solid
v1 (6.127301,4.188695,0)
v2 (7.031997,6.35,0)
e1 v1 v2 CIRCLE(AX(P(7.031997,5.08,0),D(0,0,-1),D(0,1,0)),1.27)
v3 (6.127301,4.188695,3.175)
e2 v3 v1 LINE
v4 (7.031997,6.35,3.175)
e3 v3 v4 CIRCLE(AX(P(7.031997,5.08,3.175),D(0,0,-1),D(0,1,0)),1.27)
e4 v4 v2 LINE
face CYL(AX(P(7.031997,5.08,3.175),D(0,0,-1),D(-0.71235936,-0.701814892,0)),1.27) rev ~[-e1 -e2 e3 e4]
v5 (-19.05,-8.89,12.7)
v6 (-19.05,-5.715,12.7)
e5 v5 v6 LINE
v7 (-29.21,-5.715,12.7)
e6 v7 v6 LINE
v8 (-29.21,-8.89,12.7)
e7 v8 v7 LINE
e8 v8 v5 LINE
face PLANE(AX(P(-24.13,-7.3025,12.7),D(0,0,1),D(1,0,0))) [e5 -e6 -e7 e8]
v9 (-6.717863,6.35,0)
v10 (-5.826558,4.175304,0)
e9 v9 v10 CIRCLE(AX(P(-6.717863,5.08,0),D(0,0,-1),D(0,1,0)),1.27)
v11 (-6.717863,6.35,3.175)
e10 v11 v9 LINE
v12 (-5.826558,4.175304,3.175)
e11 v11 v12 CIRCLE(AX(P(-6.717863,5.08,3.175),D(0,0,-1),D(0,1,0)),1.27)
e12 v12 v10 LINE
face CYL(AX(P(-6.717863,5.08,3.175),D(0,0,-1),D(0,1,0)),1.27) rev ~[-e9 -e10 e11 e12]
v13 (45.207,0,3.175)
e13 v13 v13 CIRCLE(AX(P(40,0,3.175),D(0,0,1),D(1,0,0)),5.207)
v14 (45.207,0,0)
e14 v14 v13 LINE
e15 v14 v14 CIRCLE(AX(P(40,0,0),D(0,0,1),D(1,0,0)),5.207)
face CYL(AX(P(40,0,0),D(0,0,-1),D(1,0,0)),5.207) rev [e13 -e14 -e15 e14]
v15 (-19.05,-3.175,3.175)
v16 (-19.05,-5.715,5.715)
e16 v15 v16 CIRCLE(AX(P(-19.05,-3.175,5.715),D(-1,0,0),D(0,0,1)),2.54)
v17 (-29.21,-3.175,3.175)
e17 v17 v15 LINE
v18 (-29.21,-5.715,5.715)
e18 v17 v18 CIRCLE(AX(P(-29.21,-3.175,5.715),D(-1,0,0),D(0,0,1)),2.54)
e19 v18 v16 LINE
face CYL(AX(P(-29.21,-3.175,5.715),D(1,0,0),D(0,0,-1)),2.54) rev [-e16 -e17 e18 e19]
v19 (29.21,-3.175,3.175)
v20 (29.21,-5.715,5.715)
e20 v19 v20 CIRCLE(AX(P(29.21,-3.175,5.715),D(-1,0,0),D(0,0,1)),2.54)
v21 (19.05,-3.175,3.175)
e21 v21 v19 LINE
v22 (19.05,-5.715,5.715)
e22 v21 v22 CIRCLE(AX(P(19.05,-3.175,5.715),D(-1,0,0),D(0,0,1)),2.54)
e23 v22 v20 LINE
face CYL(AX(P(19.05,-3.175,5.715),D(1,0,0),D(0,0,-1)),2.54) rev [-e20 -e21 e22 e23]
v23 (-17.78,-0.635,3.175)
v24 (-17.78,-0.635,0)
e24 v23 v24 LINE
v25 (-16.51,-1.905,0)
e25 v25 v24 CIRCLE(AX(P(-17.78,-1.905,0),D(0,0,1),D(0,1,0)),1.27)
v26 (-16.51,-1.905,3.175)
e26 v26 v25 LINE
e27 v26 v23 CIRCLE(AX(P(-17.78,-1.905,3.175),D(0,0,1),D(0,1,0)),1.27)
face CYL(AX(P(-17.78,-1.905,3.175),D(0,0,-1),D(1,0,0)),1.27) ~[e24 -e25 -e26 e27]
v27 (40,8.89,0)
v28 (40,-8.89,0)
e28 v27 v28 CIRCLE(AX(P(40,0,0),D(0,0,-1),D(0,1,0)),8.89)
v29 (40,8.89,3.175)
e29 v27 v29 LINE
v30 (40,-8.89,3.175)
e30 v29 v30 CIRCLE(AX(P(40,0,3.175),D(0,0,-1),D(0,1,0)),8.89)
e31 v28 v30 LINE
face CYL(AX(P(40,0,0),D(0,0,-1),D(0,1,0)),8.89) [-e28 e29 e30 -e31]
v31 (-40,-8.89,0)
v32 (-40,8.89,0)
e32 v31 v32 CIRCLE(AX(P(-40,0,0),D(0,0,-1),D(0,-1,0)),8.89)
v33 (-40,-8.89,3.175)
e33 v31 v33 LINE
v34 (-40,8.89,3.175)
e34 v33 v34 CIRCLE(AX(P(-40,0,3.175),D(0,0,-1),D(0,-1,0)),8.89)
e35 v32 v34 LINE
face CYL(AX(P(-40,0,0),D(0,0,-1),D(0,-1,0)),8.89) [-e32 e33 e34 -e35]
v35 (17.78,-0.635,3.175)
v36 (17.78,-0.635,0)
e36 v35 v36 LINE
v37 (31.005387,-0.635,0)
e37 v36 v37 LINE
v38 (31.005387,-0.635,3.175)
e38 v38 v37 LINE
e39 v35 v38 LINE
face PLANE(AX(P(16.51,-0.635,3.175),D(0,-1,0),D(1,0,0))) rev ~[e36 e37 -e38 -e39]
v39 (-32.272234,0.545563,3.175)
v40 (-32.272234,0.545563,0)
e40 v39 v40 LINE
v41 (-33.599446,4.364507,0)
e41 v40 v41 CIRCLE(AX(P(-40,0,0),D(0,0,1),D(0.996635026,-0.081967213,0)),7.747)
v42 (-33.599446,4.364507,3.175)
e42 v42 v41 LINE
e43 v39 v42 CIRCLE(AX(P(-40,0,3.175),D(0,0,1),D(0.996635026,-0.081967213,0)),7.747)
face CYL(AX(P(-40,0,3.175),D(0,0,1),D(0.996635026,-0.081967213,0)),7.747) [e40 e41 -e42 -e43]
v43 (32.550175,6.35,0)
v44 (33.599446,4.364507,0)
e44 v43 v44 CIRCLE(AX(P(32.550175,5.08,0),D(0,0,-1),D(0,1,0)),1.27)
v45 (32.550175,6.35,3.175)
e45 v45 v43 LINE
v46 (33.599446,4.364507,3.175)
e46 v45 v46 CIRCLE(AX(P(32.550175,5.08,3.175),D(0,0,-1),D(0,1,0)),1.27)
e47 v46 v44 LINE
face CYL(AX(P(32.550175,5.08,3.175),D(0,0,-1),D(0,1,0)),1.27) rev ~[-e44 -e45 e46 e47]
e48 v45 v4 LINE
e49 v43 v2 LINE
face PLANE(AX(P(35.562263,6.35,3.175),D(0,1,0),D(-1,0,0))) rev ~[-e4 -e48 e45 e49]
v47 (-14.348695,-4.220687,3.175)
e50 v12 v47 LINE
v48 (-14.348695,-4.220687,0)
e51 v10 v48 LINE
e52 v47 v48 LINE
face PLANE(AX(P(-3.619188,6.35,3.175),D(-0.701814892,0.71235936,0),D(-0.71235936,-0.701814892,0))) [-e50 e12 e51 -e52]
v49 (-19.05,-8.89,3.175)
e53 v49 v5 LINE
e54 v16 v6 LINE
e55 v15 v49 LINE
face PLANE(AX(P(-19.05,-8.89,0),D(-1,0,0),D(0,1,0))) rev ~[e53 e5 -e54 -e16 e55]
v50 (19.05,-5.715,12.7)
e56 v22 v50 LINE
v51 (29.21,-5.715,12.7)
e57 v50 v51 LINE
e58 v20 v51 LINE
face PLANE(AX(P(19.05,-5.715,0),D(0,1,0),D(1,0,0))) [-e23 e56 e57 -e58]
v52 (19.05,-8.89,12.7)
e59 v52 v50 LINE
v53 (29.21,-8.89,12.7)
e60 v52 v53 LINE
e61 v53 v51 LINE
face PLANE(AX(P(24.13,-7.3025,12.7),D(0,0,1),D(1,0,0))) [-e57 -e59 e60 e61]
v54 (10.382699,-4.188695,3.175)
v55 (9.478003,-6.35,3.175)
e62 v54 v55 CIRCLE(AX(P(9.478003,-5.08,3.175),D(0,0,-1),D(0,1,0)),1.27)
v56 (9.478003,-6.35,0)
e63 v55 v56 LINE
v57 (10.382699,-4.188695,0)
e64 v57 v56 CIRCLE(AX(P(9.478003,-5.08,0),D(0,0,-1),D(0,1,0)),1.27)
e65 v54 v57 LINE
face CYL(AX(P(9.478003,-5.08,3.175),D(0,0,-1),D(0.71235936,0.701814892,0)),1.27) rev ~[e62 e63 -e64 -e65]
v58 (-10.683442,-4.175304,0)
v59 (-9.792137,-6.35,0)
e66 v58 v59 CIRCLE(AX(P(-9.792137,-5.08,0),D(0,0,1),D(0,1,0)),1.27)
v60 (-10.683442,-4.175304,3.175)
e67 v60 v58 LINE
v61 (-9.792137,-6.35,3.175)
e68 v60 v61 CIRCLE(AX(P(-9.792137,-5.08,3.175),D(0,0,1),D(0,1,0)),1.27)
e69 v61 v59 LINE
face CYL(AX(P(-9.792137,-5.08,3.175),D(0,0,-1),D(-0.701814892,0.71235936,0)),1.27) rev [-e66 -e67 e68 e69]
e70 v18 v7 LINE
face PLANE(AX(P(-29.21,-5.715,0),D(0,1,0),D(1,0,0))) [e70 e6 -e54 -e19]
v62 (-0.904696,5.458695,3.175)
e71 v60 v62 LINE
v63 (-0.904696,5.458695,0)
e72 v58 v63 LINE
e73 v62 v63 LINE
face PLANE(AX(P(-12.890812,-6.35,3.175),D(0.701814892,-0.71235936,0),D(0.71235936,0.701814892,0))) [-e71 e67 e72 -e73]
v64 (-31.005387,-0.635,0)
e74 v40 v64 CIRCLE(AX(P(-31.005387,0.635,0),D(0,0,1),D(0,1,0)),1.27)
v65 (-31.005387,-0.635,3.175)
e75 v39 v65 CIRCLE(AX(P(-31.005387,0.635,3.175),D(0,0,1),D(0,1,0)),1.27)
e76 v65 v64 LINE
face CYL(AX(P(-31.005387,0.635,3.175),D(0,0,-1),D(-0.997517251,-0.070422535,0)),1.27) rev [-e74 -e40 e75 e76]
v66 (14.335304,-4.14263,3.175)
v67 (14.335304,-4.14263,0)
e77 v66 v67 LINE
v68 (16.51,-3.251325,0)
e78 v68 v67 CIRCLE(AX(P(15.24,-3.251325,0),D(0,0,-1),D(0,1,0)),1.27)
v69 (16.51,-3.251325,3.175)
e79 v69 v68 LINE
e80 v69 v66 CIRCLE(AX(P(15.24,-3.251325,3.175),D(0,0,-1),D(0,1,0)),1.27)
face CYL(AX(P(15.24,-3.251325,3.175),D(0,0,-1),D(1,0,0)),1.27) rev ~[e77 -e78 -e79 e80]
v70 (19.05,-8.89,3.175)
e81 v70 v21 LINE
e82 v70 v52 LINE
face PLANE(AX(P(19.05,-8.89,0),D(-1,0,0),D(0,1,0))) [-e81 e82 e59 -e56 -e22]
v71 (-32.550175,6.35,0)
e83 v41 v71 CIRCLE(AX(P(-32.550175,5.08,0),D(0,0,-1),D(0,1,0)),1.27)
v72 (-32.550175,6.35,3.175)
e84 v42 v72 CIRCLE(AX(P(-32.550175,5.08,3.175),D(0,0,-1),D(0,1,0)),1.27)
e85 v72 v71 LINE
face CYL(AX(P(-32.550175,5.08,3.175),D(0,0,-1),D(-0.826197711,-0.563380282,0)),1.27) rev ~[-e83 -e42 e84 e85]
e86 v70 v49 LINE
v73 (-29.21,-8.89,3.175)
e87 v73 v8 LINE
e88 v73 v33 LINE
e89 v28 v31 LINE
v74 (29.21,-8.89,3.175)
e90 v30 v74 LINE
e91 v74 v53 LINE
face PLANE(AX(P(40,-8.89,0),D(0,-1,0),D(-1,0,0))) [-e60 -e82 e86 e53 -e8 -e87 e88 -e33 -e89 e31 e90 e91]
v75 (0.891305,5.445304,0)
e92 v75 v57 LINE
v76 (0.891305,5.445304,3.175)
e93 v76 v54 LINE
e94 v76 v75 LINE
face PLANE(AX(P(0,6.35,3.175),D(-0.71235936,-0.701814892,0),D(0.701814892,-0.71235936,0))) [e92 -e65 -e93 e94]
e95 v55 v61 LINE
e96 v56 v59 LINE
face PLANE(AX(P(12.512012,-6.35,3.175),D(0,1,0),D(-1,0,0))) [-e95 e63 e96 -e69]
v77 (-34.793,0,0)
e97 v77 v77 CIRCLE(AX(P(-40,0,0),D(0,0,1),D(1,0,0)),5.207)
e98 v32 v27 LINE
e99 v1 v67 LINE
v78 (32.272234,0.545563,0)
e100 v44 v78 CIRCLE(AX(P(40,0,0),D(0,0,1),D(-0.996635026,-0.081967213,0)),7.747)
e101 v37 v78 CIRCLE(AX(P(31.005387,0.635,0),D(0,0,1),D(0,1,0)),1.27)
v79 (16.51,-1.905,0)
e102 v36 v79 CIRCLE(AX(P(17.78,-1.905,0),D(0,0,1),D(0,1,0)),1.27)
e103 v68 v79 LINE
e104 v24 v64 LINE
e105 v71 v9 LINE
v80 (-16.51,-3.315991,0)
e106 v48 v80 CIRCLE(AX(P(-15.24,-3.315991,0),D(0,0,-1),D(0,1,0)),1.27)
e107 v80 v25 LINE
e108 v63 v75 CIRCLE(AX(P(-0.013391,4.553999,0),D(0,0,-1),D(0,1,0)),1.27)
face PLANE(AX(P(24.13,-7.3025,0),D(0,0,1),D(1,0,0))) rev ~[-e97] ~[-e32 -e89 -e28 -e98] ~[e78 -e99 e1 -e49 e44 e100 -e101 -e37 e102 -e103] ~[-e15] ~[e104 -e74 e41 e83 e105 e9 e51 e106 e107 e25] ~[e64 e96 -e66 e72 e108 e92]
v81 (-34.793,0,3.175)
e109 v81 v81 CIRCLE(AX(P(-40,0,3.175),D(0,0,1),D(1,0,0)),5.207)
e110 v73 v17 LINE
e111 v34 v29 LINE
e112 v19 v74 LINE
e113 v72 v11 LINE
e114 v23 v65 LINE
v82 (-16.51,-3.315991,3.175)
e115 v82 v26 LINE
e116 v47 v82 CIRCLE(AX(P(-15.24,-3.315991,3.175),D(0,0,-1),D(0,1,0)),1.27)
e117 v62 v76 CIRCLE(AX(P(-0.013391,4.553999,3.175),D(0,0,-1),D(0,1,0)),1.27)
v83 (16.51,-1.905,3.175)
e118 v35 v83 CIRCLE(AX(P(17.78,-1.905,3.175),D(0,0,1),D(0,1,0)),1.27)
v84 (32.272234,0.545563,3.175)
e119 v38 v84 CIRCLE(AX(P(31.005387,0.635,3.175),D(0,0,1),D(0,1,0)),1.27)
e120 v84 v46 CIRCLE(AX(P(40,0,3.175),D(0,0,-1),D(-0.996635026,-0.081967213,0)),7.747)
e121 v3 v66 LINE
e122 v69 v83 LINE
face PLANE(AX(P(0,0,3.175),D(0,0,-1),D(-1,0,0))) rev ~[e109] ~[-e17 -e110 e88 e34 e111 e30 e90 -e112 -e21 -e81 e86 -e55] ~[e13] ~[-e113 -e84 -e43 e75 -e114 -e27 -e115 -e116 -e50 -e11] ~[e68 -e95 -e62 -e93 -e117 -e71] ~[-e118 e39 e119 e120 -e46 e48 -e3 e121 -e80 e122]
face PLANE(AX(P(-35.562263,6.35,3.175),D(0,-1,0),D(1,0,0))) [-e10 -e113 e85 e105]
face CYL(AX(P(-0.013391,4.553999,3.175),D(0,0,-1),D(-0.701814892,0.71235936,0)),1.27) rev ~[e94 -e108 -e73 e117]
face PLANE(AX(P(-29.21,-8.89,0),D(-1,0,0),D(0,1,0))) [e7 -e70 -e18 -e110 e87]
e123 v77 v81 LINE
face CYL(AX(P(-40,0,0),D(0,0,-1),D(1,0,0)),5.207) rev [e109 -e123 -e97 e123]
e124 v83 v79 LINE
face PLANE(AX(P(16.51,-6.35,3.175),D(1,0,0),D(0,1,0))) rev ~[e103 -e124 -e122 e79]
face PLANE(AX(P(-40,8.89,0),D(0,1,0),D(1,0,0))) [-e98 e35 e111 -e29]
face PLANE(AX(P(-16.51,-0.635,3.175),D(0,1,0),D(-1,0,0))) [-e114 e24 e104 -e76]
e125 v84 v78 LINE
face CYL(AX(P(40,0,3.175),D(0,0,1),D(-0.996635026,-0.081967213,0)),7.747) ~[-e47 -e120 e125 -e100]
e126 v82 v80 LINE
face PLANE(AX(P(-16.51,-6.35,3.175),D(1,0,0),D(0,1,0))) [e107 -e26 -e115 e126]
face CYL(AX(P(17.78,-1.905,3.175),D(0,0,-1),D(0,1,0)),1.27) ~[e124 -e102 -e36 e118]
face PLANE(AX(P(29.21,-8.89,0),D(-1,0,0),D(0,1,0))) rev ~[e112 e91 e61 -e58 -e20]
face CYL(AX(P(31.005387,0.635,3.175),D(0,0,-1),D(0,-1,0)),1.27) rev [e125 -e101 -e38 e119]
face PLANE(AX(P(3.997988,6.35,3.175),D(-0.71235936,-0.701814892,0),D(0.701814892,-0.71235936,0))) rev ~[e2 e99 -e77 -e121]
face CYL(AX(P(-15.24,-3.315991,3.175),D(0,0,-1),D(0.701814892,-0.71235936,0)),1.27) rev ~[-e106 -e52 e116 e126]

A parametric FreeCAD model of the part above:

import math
import FreeCAD as App
import Part
import Sketcher
Q = App.Units.Quantity


def edges_at(feature, points):
    """Names of the edges that pass closest to the given points."""
    edges = feature.Shape.Edges
    near = lambda p: min(range(len(edges)), key=lambda i: edges[i].distToShape(Part.Vertex(*p))[0])
    return sorted({f"Edge{near(p) + 1}" for p in points})

doc = App.newDocument("Part")
params = doc.addObject("Spreadsheet::Sheet", "Params")
for row, (alias, value) in enumerate([
    ("sketch1_diameter", "0.41 in"),
    ("sketch1_radius", "0.35 in"),
    ("pad1_length", "0.125 in"),
    ("sketch2_width", "0.4 in"),
    ("sketch2_height", "0.125 in"),
    ("pad2_length", "0.5 in"),
    ("fillet_radius", "0.1 in"),
    ("sketch3_radius", "0.305 in"),
    ("sketch3_height", "0.225 in"),
    ("fillet2_radius", "0.05 in"),
], start=1):
    params.set(f"A{row}", alias)
    params.set(f"B{row}", "=" + value)
    params.setAlias(f"B{row}", alias)

body = doc.addObject("PartDesign::Body", "Body")

sketch1 = body.newObject("Sketcher::SketchObject", "Sketch")
sketch1.AttachmentSupport = (doc.getObject("XY_Plane"), [""])
sketch1.MapMode = "FlatFace"
sketch1.addGeometry(Part.LineSegment(App.Vector(40, 9, 0), App.Vector(-40, 9, 0)), False)
sketch1.addGeometry(Part.ArcOfCircle(Part.Circle(App.Vector(-40, 0, 0), App.Vector(0, 0, 1), 9), math.radians(90), math.radians(270)), False)
sketch1.addGeometry(Part.LineSegment(App.Vector(-40, -9, 0), App.Vector(40, -9, 0)), False)
sketch1.addGeometry(Part.ArcOfCircle(Part.Circle(App.Vector(40, 0, 0), App.Vector(0, 0, 1), 9), math.radians(-90), math.radians(90)), False)
sketch1.addGeometry(Part.Circle(App.Vector(40, 0, 0), App.Vector(0, 0, 1), 5), False)
sketch1.addGeometry(Part.Circle(App.Vector(-40, 0, 0), App.Vector(0, 0, 1), 5), False)
sketch1.addConstraint(Sketcher.Constraint("Tangent", 0, 2, 1, 1))
sketch1.addConstraint(Sketcher.Constraint("Tangent", 1, 2, 2, 1))
sketch1.addConstraint(Sketcher.Constraint("Tangent", 2, 2, 3, 1))
sketch1.addConstraint(Sketcher.Constraint("Tangent", 3, 2, 0, 1))
sketch1.addConstraint(Sketcher.Constraint("Horizontal", 0))
sketch1.addConstraint(Sketcher.Constraint("Horizontal", 2))
sketch1.addConstraint(Sketcher.Constraint("Coincident", 4, 3, 3, 3))
sketch1.addConstraint(Sketcher.Constraint("Coincident", 5, 3, 1, 3))
sketch1.addConstraint(Sketcher.Constraint("Equal", 4, 5))
sketch1.addConstraint(Sketcher.Constraint("Symmetric", 1, 3, 3, 3, -1, 1))
sketch1.addConstraint(Sketcher.Constraint("Diameter", 4, Q("0.41 in")))
sketch1.addConstraint(Sketcher.Constraint("Radius", 1, Q("0.35 in")))
sketch1.addConstraint(Sketcher.Constraint("DistanceX", 0, 2, 0, 1, 80.0))
sketch1.setExpression("Constraints[10]", "Params.sketch1_diameter")
sketch1.setExpression("Constraints[11]", "Params.sketch1_radius")
pad1 = body.newObject("PartDesign::Pad", "Pad")
pad1.Profile = sketch1
pad1.setExpression("Length", "Params.pad1_length")

sketch2 = body.newObject("Sketcher::SketchObject", "Sketch001")
sketch2.AttachmentSupport = (doc.getObject("XY_Plane"), [""])
sketch2.MapMode = "FlatFace"
sketch2.addGeometry(Part.LineSegment(App.Vector(19.1, -5.7, 0), App.Vector(19.1, -8.9, 0)), False)
sketch2.addGeometry(Part.LineSegment(App.Vector(19.1, -8.9, 0), App.Vector(29.2, -8.9, 0)), False)
sketch2.addGeometry(Part.LineSegment(App.Vector(29.2, -8.9, 0), App.Vector(29.2, -5.7, 0)), False)
sketch2.addGeometry(Part.LineSegment(App.Vector(29.2, -5.7, 0), App.Vector(19.1, -5.7, 0)), False)
sketch2.addGeometry(Part.LineSegment(App.Vector(-29.2, -5.7, 0), App.Vector(-29.2, -8.9, 0)), False)
sketch2.addGeometry(Part.LineSegment(App.Vector(-29.2, -8.9, 0), App.Vector(-19.1, -8.9, 0)), False)
sketch2.addGeometry(Part.LineSegment(App.Vector(-19.1, -8.9, 0), App.Vector(-19.1, -5.7, 0)), False)
sketch2.addGeometry(Part.LineSegment(App.Vector(-19.1, -5.7, 0), App.Vector(-29.2, -5.7, 0)), False)
sketch2.addConstraint(Sketcher.Constraint("Coincident", 0, 2, 1, 1))
sketch2.addConstraint(Sketcher.Constraint("Coincident", 1, 2, 2, 1))
sketch2.addConstraint(Sketcher.Constraint("Coincident", 2, 2, 3, 1))
sketch2.addConstraint(Sketcher.Constraint("Coincident", 3, 2, 0, 1))
sketch2.addConstraint(Sketcher.Constraint("Coincident", 4, 2, 5, 1))
sketch2.addConstraint(Sketcher.Constraint("Coincident", 5, 2, 6, 1))
sketch2.addConstraint(Sketcher.Constraint("Coincident", 6, 2, 7, 1))
sketch2.addConstraint(Sketcher.Constraint("Coincident", 7, 2, 4, 1))
sketch2.addConstraint(Sketcher.Constraint("Vertical", 0))
sketch2.addConstraint(Sketcher.Constraint("Horizontal", 1))
sketch2.addConstraint(Sketcher.Constraint("Vertical", 2))
sketch2.addConstraint(Sketcher.Constraint("Horizontal", 3))
sketch2.addConstraint(Sketcher.Constraint("Vertical", 4))
sketch2.addConstraint(Sketcher.Constraint("Horizontal", 5))
sketch2.addConstraint(Sketcher.Constraint("Vertical", 6))
sketch2.addConstraint(Sketcher.Constraint("Horizontal", 7))
sketch2.addConstraint(Sketcher.Constraint("Symmetric", 1, 2, 4, 2, -2))
sketch2.addConstraint(Sketcher.Constraint("Symmetric", 3, 2, 6, 2, -2))
sketch2.addConstraint(Sketcher.Constraint("DistanceX", 1, 1, 1, 2, Q("0.4 in")))
sketch2.addConstraint(Sketcher.Constraint("DistanceX", 4, 2, 0, 2, Q("1.9 in")))
sketch2.addConstraint(Sketcher.Constraint("DistanceY", 0, 2, 0, 1, Q("0.125 in")))
sketch2.addConstraint(Sketcher.Constraint("DistanceY", 0, 2, -1, 1, Q("0.35 in")))
sketch2.setExpression("Constraints[18]", "Params.sketch2_width")
sketch2.setExpression("Constraints[20]", "Params.sketch2_height")
pad2 = body.newObject("PartDesign::Pad", "Pad001")
pad2.Profile = sketch2
pad2.setExpression("Length", "Params.pad2_length")
doc.recompute()

fillet = body.newObject("PartDesign::Fillet", "Fillet")
fillet.Base = (pad2, edges_at(pad2, [(-24.13, -5.715, 3.175), (24.13, -5.715, 3.175)]))
fillet.setExpression("Radius", "Params.fillet_radius")

sketch3 = body.newObject("Sketcher::SketchObject", "Sketch002")
sketch3.AttachmentSupport = (doc.getObject("XY_Plane"), [""])
sketch3.MapMode = "FlatFace"
sketch3.AttachmentOffset = App.Placement(App.Vector(0, 0, 0.125 * 25.4), App.Rotation())
sketch3.addGeometry(Part.ArcOfCircle(Part.Circle(App.Vector(-40, 0, 0), App.Vector(0, 0, 1), 8), math.radians(-5), math.radians(55)), False)
sketch3.addGeometry(Part.LineSegment(App.Vector(-32, -1, 0), App.Vector(-17, -1, 0)), False)
sketch3.addGeometry(Part.LineSegment(App.Vector(-17, -1, 0), App.Vector(-17, -6, 0)), False)
sketch3.addGeometry(Part.LineSegment(App.Vector(-17, -6, 0), App.Vector(-4, 6, 0)), False)
sketch3.addGeometry(Part.LineSegment(App.Vector(-4, 6, 0), App.Vector(-36, 6, 0)), False)
sketch3.addGeometry(Part.ArcOfCircle(Part.Circle(App.Vector(40, 0, 0), App.Vector(0, 0, 1), 8), math.radians(125), math.radians(185)), False)
sketch3.addGeometry(Part.LineSegment(App.Vector(36, 6, 0), App.Vector(4, 6, 0)), False)
sketch3.addGeometry(Part.LineSegment(App.Vector(4, 6, 0), App.Vector(17, -6, 0)), False)
sketch3.addGeometry(Part.LineSegment(App.Vector(17, -6, 0), App.Vector(17, -1, 0)), False)
sketch3.addGeometry(Part.LineSegment(App.Vector(17, -1, 0), App.Vector(32, -1, 0)), False)
sketch3.addGeometry(Part.LineSegment(App.Vector(0, 6, 0), App.Vector(-13, -6, 0)), False)
sketch3.addGeometry(Part.LineSegment(App.Vector(-13, -6, 0), App.Vector(13, -6, 0)), False)
sketch3.addGeometry(Part.LineSegment(App.Vector(13, -6, 0), App.Vector(0, 6, 0)), False)
sketch3.addConstraint(Sketcher.Constraint("Coincident", 0, 1, 1, 1))
sketch3.addConstraint(Sketcher.Constraint("Coincident", 1, 2, 2, 1))
sketch3.addConstraint(Sketcher.Constraint("Coincident", 2, 2, 3, 1))
sketch3.addConstraint(Sketcher.Constraint("Coincident", 3, 2, 4, 1))
sketch3.addConstraint(Sketcher.Constraint("Coincident", 4, 2, 0, 2))
sketch3.addConstraint(Sketcher.Constraint("Coincident", 5, 1, 6, 1))
sketch3.addConstraint(Sketcher.Constraint("Coincident", 6, 2, 7, 1))
sketch3.addConstraint(Sketcher.Constraint("Coincident", 7, 2, 8, 1))
sketch3.addConstraint(Sketcher.Constraint("Coincident", 8, 2, 9, 1))
sketch3.addConstraint(Sketcher.Constraint("Coincident", 9, 2, 5, 2))
sketch3.addConstraint(Sketcher.Constraint("Coincident", 10, 2, 11, 1))
sketch3.addConstraint(Sketcher.Constraint("Coincident", 11, 2, 12, 1))
sketch3.addConstraint(Sketcher.Constraint("Coincident", 12, 2, 10, 1))
sketch3.addConstraint(Sketcher.Constraint("Horizontal", 1))
sketch3.addConstraint(Sketcher.Constraint("Vertical", 2))
sketch3.addConstraint(Sketcher.Constraint("Horizontal", 4))
sketch3.addConstraint(Sketcher.Constraint("Horizontal", 6))
sketch3.addConstraint(Sketcher.Constraint("Vertical", 8))
sketch3.addConstraint(Sketcher.Constraint("Horizontal", 9))
sketch3.addConstraint(Sketcher.Constraint("Horizontal", 11))
sketch3.addConstraint(Sketcher.Constraint("Equal", 0, 5))
sketch3.addConstraint(Sketcher.Constraint("Symmetric", 0, 3, 5, 3, -1, 1))
sketch3.addConstraint(Sketcher.Constraint("Symmetric", 4, 2, 5, 1, -2))
sketch3.addConstraint(Sketcher.Constraint("Symmetric", 2, 2, 7, 2, -2))
sketch3.addConstraint(Sketcher.Constraint("PointOnObject", 12, 2, -2))
sketch3.addConstraint(Sketcher.Constraint("Perpendicular", 3, 7))
sketch3.addConstraint(Sketcher.Constraint("Perpendicular", 7, 10))
sketch3.addConstraint(Sketcher.Constraint("Perpendicular", 10, 12))
sketch3.addConstraint(Sketcher.Constraint("Horizontal", 1, 2, 8, 2))
sketch3.addConstraint(Sketcher.Constraint("Horizontal", 7, 2, 10, 2))
sketch3.addConstraint(Sketcher.Constraint("Horizontal", 6, 2, 12, 2))
sketch3.addConstraint(Sketcher.Constraint("Radius", 0, Q("0.305 in")))
sketch3.addConstraint(Sketcher.Constraint("DistanceY", 2, 2, 3, 2, Q("0.5 in")))
sketch3.addConstraint(Sketcher.Constraint("DistanceX", 2, 2, 7, 2, Q("1.3 in")))
sketch3.addConstraint(Sketcher.Constraint("DistanceY", 2, 2, 2, 1, Q("0.225 in")))
sketch3.addConstraint(Sketcher.Constraint("DistanceY", 2, 2, -1, 1, Q("0.25 in")))
sketch3.addConstraint(Sketcher.Constraint("DistanceX", 1, 1, 1, 2, 15.769068))
sketch3.addConstraint(Sketcher.Constraint("DistanceX", 10, 2, 6, 2, 16.8888))
sketch3.setExpression("Constraints[31]", "Params.sketch3_radius")
sketch3.setExpression("Constraints[34]", "Params.sketch3_height")
pocket1 = body.newObject("PartDesign::Pocket", "Pocket")
pocket1.Profile = sketch3
pocket1.Type = "ThroughAll"
doc.recompute()

fillet2 = body.newObject("PartDesign::Fillet", "Fillet001")
fillet2.Base = (pocket1, edges_at(pocket1, [
    (35.562, 6.35, 1.587),
    (32.279, -0.635, 1.587),
    (16.51, -0.635, 1.587),
    (16.51, -6.35, 1.587),
    (3.998, 6.35, 1.587),
    (12.512, -6.35, 1.587),
    (-12.891, -6.35, 1.587),
    (0, 6.35, 1.587),
    (-32.279, -0.635, 1.587),
    (-35.562, 6.35, 1.587),
    (-3.619, 6.35, 1.587),
    (-16.51, -6.35, 1.587),
    (-16.51, -0.635, 1.587),
]))
fillet2.setExpression("Radius", "Params.fillet2_radius")

doc.recompute()
